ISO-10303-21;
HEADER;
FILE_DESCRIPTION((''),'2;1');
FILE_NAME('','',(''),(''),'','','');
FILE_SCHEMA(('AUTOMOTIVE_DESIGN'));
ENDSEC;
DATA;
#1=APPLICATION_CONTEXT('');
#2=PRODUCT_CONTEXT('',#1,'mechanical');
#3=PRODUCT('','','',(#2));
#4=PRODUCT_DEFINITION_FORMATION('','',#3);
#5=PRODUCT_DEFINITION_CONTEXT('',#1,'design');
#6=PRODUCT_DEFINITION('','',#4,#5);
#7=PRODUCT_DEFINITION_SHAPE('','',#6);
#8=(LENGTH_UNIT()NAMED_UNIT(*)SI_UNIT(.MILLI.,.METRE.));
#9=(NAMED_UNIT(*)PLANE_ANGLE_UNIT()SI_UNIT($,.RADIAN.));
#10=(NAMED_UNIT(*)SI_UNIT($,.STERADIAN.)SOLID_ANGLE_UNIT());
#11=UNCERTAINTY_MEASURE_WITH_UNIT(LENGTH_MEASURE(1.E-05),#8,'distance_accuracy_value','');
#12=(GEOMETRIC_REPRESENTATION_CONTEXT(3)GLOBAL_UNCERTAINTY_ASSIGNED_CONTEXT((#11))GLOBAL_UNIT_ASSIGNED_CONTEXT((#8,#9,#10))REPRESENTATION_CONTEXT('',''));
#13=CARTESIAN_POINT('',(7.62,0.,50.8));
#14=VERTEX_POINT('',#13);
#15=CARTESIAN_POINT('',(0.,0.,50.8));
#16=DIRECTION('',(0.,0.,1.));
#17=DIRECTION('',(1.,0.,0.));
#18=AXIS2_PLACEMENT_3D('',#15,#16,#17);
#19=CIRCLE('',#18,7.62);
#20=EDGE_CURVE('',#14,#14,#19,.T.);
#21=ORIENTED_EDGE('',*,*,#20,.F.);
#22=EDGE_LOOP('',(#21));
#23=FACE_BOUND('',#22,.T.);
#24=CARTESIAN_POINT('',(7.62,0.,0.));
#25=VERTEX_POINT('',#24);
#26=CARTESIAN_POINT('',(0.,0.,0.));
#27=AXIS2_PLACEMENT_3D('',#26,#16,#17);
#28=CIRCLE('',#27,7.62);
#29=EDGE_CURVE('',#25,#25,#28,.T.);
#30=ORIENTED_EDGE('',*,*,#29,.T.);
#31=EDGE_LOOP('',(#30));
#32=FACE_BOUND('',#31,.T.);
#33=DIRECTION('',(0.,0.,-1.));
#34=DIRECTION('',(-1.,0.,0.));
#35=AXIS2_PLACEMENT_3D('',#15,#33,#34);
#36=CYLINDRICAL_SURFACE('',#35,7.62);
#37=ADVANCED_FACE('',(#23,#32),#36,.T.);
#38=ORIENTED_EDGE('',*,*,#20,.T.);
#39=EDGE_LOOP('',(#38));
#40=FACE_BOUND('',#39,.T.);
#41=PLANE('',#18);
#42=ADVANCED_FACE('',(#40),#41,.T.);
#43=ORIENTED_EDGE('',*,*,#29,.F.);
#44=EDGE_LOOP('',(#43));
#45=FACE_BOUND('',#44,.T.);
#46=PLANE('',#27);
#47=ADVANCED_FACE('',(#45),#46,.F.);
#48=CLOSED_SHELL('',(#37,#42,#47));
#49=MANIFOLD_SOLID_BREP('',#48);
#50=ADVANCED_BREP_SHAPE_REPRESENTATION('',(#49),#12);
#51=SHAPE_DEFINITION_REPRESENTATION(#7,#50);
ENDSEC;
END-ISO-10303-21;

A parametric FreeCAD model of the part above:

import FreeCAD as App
import Part
import Sketcher

V = App.Vector
Q = App.Units.Quantity

doc = App.newDocument("Part")
params = doc.addObject("Spreadsheet::Sheet", "Params")
for row, (alias, value) in enumerate([
    ("sketch1_diameter", "0.6 in"),
    ("pad1_length", "2 in"),
], start=1):
    params.set(f"A{row}", alias)
    params.set(f"B{row}", "=" + value)
    params.setAlias(f"B{row}", alias)

body = doc.addObject("PartDesign::Body", "Body")

# Sketch on XY plane
sketch1 = body.newObject("Sketcher::SketchObject", "Sketch")
sketch1.AttachmentSupport = (doc.getObject("XY_Plane"), [""])
sketch1.MapMode = "FlatFace"
sketch1.addGeometry(Part.Circle(V(0, 0, 0), V(0, 0, 1), 7.62), False)
sketch1.addConstraint([
    Sketcher.Constraint("Coincident", 0, 3, -1, 1),
    Sketcher.Constraint("Diameter", 0, Q("0.6 in")),
])
sketch1.setExpression("Constraints[1]", "Params.sketch1_diameter")
pad1 = body.newObject("PartDesign::Pad", "Pad")
pad1.Profile = sketch1
pad1.setExpression("Length", "Params.pad1_length")

doc.recompute()
